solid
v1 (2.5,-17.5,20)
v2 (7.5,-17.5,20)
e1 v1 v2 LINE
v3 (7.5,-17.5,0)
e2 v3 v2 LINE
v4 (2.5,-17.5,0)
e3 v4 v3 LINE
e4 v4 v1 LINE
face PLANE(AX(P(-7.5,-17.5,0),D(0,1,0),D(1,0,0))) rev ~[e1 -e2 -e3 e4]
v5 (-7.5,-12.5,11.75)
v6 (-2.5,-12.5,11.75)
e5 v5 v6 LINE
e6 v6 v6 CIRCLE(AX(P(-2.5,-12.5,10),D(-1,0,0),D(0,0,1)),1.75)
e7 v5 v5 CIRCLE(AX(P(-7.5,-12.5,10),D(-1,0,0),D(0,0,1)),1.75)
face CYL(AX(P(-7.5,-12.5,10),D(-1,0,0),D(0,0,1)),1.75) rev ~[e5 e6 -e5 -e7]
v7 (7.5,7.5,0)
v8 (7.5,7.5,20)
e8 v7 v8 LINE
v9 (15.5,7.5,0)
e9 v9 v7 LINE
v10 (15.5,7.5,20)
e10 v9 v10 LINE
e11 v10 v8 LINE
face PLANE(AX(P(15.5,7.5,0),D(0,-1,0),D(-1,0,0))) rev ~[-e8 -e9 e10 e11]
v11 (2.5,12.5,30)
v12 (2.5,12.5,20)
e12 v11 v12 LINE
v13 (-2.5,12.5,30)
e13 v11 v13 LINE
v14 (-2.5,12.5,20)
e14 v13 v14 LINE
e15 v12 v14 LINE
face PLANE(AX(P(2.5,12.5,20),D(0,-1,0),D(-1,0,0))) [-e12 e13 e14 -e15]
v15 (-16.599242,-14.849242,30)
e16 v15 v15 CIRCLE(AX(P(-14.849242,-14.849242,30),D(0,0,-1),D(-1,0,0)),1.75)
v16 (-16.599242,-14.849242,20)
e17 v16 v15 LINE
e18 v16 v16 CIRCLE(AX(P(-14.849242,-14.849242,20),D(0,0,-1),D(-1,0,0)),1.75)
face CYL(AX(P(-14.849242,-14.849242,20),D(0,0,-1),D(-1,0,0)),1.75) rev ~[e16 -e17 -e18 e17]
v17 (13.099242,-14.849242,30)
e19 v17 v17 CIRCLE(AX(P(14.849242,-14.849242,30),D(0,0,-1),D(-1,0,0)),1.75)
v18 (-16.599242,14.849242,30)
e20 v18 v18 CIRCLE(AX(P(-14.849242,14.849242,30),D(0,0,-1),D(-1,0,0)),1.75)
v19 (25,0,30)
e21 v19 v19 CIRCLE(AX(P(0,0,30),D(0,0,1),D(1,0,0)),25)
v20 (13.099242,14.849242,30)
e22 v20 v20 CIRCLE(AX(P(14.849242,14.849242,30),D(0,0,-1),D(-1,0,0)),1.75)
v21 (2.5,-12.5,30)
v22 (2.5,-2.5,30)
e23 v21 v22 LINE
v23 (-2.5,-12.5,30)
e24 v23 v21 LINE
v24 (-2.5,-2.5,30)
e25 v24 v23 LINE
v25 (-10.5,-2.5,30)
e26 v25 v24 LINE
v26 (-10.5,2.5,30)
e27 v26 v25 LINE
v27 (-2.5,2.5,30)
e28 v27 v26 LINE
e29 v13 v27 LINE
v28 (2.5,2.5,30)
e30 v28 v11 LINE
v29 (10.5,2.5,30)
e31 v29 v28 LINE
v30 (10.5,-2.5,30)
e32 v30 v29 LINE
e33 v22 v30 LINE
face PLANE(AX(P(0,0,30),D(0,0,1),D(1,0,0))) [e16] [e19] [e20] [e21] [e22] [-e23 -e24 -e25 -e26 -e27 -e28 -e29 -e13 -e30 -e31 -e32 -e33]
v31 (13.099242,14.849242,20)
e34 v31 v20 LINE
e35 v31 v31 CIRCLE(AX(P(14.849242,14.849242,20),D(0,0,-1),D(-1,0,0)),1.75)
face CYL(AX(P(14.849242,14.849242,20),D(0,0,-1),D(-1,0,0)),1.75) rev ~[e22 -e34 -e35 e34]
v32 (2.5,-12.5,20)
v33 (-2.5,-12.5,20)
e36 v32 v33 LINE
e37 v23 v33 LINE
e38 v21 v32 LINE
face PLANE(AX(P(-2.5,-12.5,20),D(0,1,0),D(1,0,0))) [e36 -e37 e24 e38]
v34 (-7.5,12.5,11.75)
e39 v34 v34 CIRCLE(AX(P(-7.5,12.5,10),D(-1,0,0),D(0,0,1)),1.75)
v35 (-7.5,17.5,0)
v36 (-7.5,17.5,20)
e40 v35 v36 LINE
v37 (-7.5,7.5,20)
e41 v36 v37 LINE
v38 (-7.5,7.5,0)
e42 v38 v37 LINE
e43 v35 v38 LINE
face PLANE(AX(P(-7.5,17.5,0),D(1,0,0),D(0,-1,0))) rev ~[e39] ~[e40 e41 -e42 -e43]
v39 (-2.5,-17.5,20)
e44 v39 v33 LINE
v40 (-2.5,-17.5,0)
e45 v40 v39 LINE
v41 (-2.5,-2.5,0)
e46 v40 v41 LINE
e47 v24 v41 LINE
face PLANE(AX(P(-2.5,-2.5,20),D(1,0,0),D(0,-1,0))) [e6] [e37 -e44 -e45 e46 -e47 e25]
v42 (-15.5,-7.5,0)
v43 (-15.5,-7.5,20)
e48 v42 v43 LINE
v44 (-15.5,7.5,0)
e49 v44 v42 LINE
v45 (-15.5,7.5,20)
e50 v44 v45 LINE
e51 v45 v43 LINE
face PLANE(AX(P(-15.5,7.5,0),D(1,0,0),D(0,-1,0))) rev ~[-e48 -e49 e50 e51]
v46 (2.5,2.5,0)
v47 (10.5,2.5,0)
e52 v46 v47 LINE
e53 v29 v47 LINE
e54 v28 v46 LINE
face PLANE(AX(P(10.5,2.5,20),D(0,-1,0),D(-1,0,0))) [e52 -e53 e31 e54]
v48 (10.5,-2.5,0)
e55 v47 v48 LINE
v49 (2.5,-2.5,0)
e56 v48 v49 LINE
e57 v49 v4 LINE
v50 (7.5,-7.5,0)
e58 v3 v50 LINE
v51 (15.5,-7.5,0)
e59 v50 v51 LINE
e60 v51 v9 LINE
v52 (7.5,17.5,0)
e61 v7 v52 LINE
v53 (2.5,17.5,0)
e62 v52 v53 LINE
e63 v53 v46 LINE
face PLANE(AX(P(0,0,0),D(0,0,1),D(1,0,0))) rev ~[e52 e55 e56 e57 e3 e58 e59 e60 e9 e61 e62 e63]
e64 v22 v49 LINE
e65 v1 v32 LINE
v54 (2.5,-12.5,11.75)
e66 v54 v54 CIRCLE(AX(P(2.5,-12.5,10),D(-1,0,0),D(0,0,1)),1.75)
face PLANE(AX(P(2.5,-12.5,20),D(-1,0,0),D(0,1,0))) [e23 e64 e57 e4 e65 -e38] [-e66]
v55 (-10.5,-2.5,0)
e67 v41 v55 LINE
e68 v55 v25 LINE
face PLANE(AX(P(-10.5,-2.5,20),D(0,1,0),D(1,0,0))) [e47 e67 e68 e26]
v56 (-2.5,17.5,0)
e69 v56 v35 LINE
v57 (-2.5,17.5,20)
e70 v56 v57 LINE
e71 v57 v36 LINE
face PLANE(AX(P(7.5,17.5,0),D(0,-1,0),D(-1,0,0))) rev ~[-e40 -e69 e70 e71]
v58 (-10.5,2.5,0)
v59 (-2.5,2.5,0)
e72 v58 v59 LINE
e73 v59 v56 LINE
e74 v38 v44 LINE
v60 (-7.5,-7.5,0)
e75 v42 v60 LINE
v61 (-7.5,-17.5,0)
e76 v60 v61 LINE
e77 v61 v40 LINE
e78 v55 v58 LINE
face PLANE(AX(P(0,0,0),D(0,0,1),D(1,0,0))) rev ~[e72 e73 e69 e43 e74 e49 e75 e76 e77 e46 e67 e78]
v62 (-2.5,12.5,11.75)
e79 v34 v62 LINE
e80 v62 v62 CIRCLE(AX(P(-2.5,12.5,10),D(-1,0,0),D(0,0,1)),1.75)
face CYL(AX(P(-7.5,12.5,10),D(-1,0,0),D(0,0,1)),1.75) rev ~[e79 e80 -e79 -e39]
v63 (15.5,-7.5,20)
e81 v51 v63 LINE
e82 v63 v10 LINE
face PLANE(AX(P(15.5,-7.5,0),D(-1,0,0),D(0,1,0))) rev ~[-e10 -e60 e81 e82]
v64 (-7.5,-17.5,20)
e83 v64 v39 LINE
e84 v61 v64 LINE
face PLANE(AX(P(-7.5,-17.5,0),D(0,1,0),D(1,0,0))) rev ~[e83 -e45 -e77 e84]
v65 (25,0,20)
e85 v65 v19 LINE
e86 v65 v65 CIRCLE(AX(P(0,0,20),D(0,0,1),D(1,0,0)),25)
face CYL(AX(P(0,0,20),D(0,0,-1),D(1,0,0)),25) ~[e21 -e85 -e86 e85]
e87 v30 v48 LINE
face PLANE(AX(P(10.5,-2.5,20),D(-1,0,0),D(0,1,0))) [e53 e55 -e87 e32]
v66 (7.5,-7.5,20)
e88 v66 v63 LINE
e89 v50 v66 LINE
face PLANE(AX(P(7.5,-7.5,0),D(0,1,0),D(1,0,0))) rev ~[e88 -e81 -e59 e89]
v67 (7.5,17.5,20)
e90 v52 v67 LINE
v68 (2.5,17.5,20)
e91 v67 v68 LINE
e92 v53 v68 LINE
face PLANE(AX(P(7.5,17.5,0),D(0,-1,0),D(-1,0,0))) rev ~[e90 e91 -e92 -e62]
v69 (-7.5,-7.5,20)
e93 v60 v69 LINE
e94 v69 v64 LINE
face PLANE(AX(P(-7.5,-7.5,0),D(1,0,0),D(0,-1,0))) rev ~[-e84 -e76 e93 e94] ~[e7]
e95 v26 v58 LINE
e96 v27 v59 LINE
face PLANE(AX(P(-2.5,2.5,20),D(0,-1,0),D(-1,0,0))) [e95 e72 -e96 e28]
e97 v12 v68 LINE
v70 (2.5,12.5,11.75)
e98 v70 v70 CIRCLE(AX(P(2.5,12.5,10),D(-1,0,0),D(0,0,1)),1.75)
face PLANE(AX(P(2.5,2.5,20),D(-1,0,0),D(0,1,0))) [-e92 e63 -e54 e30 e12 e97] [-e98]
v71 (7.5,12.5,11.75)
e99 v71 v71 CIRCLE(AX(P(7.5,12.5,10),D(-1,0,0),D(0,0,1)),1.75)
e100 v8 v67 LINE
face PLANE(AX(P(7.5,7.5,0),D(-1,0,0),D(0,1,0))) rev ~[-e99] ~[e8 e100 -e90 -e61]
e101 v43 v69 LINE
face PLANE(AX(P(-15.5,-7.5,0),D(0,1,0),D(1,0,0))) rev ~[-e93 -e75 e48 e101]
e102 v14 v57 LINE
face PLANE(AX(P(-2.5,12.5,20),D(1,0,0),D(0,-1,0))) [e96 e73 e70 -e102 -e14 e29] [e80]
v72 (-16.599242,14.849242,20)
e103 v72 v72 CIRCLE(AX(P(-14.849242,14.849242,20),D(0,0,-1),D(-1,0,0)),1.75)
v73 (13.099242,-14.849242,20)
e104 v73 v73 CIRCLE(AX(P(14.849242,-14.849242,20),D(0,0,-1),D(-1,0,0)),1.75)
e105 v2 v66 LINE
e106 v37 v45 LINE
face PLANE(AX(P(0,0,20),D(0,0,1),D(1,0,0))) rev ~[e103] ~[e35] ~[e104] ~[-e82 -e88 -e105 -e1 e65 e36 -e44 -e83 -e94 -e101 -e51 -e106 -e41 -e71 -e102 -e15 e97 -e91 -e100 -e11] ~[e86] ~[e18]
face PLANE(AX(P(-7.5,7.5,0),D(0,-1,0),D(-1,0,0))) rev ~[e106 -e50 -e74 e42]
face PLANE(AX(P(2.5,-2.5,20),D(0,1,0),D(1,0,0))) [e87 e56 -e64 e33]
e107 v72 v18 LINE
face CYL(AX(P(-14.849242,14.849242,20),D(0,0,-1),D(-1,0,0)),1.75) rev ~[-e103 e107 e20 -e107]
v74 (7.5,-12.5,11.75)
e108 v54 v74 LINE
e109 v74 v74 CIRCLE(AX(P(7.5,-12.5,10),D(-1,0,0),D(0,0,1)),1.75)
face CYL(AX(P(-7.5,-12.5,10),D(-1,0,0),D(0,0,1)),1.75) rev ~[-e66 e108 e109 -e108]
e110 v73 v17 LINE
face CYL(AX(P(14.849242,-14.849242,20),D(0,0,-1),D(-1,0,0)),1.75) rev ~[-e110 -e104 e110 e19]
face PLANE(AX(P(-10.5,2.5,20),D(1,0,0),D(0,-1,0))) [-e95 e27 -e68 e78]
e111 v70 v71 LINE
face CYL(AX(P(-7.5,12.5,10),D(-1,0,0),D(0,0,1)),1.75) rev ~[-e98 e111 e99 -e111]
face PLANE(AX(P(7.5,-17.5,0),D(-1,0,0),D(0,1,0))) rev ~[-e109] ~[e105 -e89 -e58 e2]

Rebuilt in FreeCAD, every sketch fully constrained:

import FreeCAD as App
import Part
import Sketcher
from FreeCAD import Vector
Q = App.Units.Quantity


def add_polygon(sketch, points):
    """Adds a closed chain of lines whose ends are joined by coincident constraints."""
    first, n = sketch.GeometryCount, len(points)
    for a, b in zip(points, points[1:] + points[:1]):
        sketch.addGeometry(Part.LineSegment(App.Vector(*a, 0), App.Vector(*b, 0)), False)
    for i in range(n):
        sketch.addConstraint(Sketcher.Constraint("Coincident", first + i, 2, first + (i + 1) % n, 1))

doc = App.newDocument("Part")
body = doc.addObject("PartDesign::Body", "Body")

sketch1 = doc.addObject("Sketcher::SketchObject", "Sketch")
body.addObject(sketch1)
sketch1.AttachmentSupport = (doc.XY_Plane, [""])
sketch1.MapMode = "FlatFace"
add_polygon(sketch1, [(-16, 8), (-16, -8), (-8, -8), (-8, -18), (8, -18), (8, -8), (16, -8), (16, 8), (8, 8), (8, 18), (-8, 18), (-8, 8)])
add_polygon(sketch1, [(-10, -2), (-10, 2), (-2, 2), (-2, 12), (2, 12), (2, 2), (10, 2), (10, -2), (2, -2), (2, -12), (-2, -12), (-2, -2)])
sketch1.addConstraint(Sketcher.Constraint("Vertical", 0))
sketch1.addConstraint(Sketcher.Constraint("Horizontal", 1))
sketch1.addConstraint(Sketcher.Constraint("Vertical", 2))
sketch1.addConstraint(Sketcher.Constraint("Horizontal", 3))
sketch1.addConstraint(Sketcher.Constraint("Vertical", 4))
sketch1.addConstraint(Sketcher.Constraint("Horizontal", 5))
sketch1.addConstraint(Sketcher.Constraint("Vertical", 6))
sketch1.addConstraint(Sketcher.Constraint("Horizontal", 7))
sketch1.addConstraint(Sketcher.Constraint("Vertical", 8))
sketch1.addConstraint(Sketcher.Constraint("Horizontal", 9))
sketch1.addConstraint(Sketcher.Constraint("Vertical", 10))
sketch1.addConstraint(Sketcher.Constraint("Horizontal", 11))
sketch1.addConstraint(Sketcher.Constraint("Vertical", 12))
sketch1.addConstraint(Sketcher.Constraint("Horizontal", 13))
sketch1.addConstraint(Sketcher.Constraint("Vertical", 14))
sketch1.addConstraint(Sketcher.Constraint("Horizontal", 15))
sketch1.addConstraint(Sketcher.Constraint("Vertical", 16))
sketch1.addConstraint(Sketcher.Constraint("Horizontal", 17))
sketch1.addConstraint(Sketcher.Constraint("Vertical", 18))
sketch1.addConstraint(Sketcher.Constraint("Horizontal", 19))
sketch1.addConstraint(Sketcher.Constraint("Vertical", 20))
sketch1.addConstraint(Sketcher.Constraint("Horizontal", 21))
sketch1.addConstraint(Sketcher.Constraint("Vertical", 22))
sketch1.addConstraint(Sketcher.Constraint("Horizontal", 23))
sketch1.addConstraint(Sketcher.Constraint("Symmetric", 0, 2, 6, 2, -1, 1))
sketch1.addConstraint(Sketcher.Constraint("Symmetric", 2, 2, 8, 2, -1, 1))
sketch1.addConstraint(Sketcher.Constraint("Symmetric", 4, 2, 10, 2, -1, 1))
sketch1.addConstraint(Sketcher.Constraint("Symmetric", 12, 2, 18, 2, -1, 1))
sketch1.addConstraint(Sketcher.Constraint("Symmetric", 14, 2, 20, 2, -1, 1))
sketch1.addConstraint(Sketcher.Constraint("Symmetric", 16, 2, 22, 2, -1, 1))
sketch1.addConstraint(Sketcher.Constraint("Symmetric", 1, 2, 4, 2, -2))
sketch1.addConstraint(Sketcher.Constraint("Symmetric", 13, 2, 16, 2, -2))
sketch1.addConstraint(Sketcher.Constraint("Equal", 11, 13))
sketch1.addConstraint(Sketcher.Constraint("Equal", 9, 0))
sketch1.addConstraint(Sketcher.Constraint("Equal", 21, 12))
sketch1.addConstraint(Sketcher.Constraint("Equal", 10, 14))
sketch1.addConstraint(Sketcher.Constraint("DistanceX", 1, 1, 1, 2, Q("8 mm")))
sketch1.addConstraint(Sketcher.Constraint("DistanceX", 3, 1, 3, 2, Q("15 mm")))
sketch1.addConstraint(Sketcher.Constraint("DistanceX", 15, 1, 15, 2, Q("5 mm")))
sketch1.addConstraint(Sketcher.Constraint("DistanceY", 2, 2, 2, 1, Q("10 mm")))
pad1 = doc.addObject("PartDesign::Pad", "Pad")
body.addObject(pad1)
pad1.Profile = sketch1
pad1.Length = 20

sketch2 = doc.addObject("Sketcher::SketchObject", "Sketch001")
body.addObject(sketch2)
sketch2.AttachmentSupport = (doc.XY_Plane, [""])
sketch2.MapMode = "FlatFace"
sketch2.AttachmentOffset = App.Placement(Vector(0, 0, 20), App.Rotation())
sketch2.addGeometry(Part.Circle(Vector(0, 0, 0), Vector(0, 0, 1), 25), False)
add_polygon(sketch2, [(-2, -2), (-10, -2), (-10, 2), (-2, 2), (-2, 12), (2, 12), (2, 2), (10, 2), (10, -2), (2, -2), (2, -12), (-2, -12)])
sketch2.addConstraint(Sketcher.Constraint("Horizontal", 1))
sketch2.addConstraint(Sketcher.Constraint("Vertical", 2))
sketch2.addConstraint(Sketcher.Constraint("Horizontal", 3))
sketch2.addConstraint(Sketcher.Constraint("Vertical", 4))
sketch2.addConstraint(Sketcher.Constraint("Horizontal", 5))
sketch2.addConstraint(Sketcher.Constraint("Vertical", 6))
sketch2.addConstraint(Sketcher.Constraint("Horizontal", 7))
sketch2.addConstraint(Sketcher.Constraint("Vertical", 8))
sketch2.addConstraint(Sketcher.Constraint("Horizontal", 9))
sketch2.addConstraint(Sketcher.Constraint("Vertical", 10))
sketch2.addConstraint(Sketcher.Constraint("Horizontal", 11))
sketch2.addConstraint(Sketcher.Constraint("Vertical", 12))
sketch2.addConstraint(Sketcher.Constraint("Coincident", 0, 3, -1, 1))
sketch2.addConstraint(Sketcher.Constraint("Symmetric", 1, 2, 7, 2, -1, 1))
sketch2.addConstraint(Sketcher.Constraint("Symmetric", 3, 2, 9, 2, -1, 1))
sketch2.addConstraint(Sketcher.Constraint("Symmetric", 5, 2, 11, 2, -1, 1))
sketch2.addConstraint(Sketcher.Constraint("Symmetric", 3, 2, 6, 2, -2))
sketch2.addConstraint(Sketcher.Constraint("Equal", 11, 2))
sketch2.addConstraint(Sketcher.Constraint("Diameter", 0, Q("50 mm")))
sketch2.addConstraint(Sketcher.Constraint("DistanceX", 1, 2, 1, 1, Q("8 mm")))
sketch2.addConstraint(Sketcher.Constraint("DistanceX", 5, 1, 5, 2, Q("5 mm")))
sketch2.addConstraint(Sketcher.Constraint("DistanceY", 4, 1, 4, 2, Q("10 mm")))
pad2 = doc.addObject("PartDesign::Pad", "Pad001")
body.addObject(pad2)
pad2.Profile = sketch2
pad2.Length = 10

sketch3 = doc.addObject("Sketcher::SketchObject", "Sketch002")
body.addObject(sketch3)
sketch3.AttachmentSupport = (doc.XY_Plane, [""])
sketch3.MapMode = "FlatFace"
add_polygon(sketch3, [(2, 18), (2, 12), (-2, 12), (-2, 18)])
add_polygon(sketch3, [(2, -12), (2, -18), (-2, -18), (-2, -12)])
sketch3.addConstraint(Sketcher.Constraint("Vertical", 0))
sketch3.addConstraint(Sketcher.Constraint("Horizontal", 1))
sketch3.addConstraint(Sketcher.Constraint("Vertical", 2))
sketch3.addConstraint(Sketcher.Constraint("Horizontal", 3))
sketch3.addConstraint(Sketcher.Constraint("Vertical", 4))
sketch3.addConstraint(Sketcher.Constraint("Horizontal", 5))
sketch3.addConstraint(Sketcher.Constraint("Vertical", 6))
sketch3.addConstraint(Sketcher.Constraint("Horizontal", 7))
sketch3.addConstraint(Sketcher.Constraint("Symmetric", 2, 2, 4, 2, -1, 1))
sketch3.addConstraint(Sketcher.Constraint("Symmetric", 0, 2, 6, 2, -1, 1))
sketch3.addConstraint(Sketcher.Constraint("Vertical", 3, 2, 4, 2))
sketch3.addConstraint(Sketcher.Constraint("Equal", 7, 0))
sketch3.addConstraint(Sketcher.Constraint("DistanceX", 1, 2, 1, 1, Q("5 mm")))
sketch3.addConstraint(Sketcher.Constraint("DistanceY", 4, 2, 0, 2, Q("30 mm")))
pocket1 = doc.addObject("PartDesign::Pocket", "Pocket")
body.addObject(pocket1)
pocket1.Profile = sketch3
pocket1.Length = 20
pocket1.Reversed = True

sketch4 = doc.addObject("Sketcher::SketchObject", "Sketch003")
body.addObject(sketch4)
sketch4.AttachmentSupport = (doc.XY_Plane, [""])
sketch4.MapMode = "FlatFace"
sketch4.AttachmentOffset = App.Placement(Vector(0, 0, 20), App.Rotation())
sketch4.addGeometry(Part.Circle(Vector(-14.8, 14.8, 0), Vector(0, 0, 1), 1.8), False)
sketch4.addGeometry(Part.Circle(Vector(-14.8, -14.8, 0), Vector(0, 0, 1), 1.8), False)
sketch4.addGeometry(Part.Circle(Vector(14.8, -14.8, 0), Vector(0, 0, 1), 1.8), False)
sketch4.addGeometry(Part.Circle(Vector(14.8, 14.8, 0), Vector(0, 0, 1), 1.8), False)
sketch4.addConstraint(Sketcher.Constraint("Equal", 0, 1))
sketch4.addConstraint(Sketcher.Constraint("Equal", 1, 2))
sketch4.addConstraint(Sketcher.Constraint("Equal", 2, 3))
sketch4.addConstraint(Sketcher.Constraint("Symmetric", 0, 3, 2, 3, -1, 1))
sketch4.addConstraint(Sketcher.Constraint("Symmetric", 1, 3, 3, 3, -1, 1))
sketch4.addConstraint(Sketcher.Constraint("Symmetric", 1, 3, 2, 3, -2))
sketch4.addConstraint(Sketcher.Constraint("Diameter", 0, Q("3.5 mm")))
sketch4.addConstraint(Sketcher.Constraint("DistanceX", 0, 3, -1, 1, Q("14.849242 mm")))
sketch4.addConstraint(Sketcher.Constraint("DistanceY", -1, 1, 0, 3, Q("14.849242 mm")))
pocket2 = doc.addObject("PartDesign::Pocket", "Pocket001")
body.addObject(pocket2)
pocket2.Profile = sketch4
pocket2.Length = 10
pocket2.Reversed = True

sketch5 = doc.addObject("Sketcher::SketchObject", "Sketch004")
body.addObject(sketch5)
sketch5.AttachmentSupport = (doc.YZ_Plane, [""])
sketch5.MapMode = "FlatFace"
sketch5.AttachmentOffset = App.Placement(Vector(0, 0, -7.5), App.Rotation())
sketch5.addGeometry(Part.Circle(Vector(12.5, 10, 0), Vector(0, 0, 1), 1.8), False)
sketch5.addGeometry(Part.Circle(Vector(-12.5, 10, 0), Vector(0, 0, 1), 1.8), False)
sketch5.addConstraint(Sketcher.Constraint("Equal", 0, 1))
sketch5.addConstraint(Sketcher.Constraint("Symmetric", 0, 3, 1, 3, -2))
sketch5.addConstraint(Sketcher.Constraint("Diameter", 0, Q("3.5 mm")))
sketch5.addConstraint(Sketcher.Constraint("DistanceY", -1, 1, 0, 3, Q("10 mm")))
sketch5.addConstraint(Sketcher.Constraint("DistanceX", 1, 3, 0, 3, Q("25 mm")))
pocket3 = doc.addObject("PartDesign::Pocket", "Pocket002")
body.addObject(pocket3)
pocket3.Profile = sketch5
pocket3.Length = 38
pocket3.Reversed = True

doc.recompute()
